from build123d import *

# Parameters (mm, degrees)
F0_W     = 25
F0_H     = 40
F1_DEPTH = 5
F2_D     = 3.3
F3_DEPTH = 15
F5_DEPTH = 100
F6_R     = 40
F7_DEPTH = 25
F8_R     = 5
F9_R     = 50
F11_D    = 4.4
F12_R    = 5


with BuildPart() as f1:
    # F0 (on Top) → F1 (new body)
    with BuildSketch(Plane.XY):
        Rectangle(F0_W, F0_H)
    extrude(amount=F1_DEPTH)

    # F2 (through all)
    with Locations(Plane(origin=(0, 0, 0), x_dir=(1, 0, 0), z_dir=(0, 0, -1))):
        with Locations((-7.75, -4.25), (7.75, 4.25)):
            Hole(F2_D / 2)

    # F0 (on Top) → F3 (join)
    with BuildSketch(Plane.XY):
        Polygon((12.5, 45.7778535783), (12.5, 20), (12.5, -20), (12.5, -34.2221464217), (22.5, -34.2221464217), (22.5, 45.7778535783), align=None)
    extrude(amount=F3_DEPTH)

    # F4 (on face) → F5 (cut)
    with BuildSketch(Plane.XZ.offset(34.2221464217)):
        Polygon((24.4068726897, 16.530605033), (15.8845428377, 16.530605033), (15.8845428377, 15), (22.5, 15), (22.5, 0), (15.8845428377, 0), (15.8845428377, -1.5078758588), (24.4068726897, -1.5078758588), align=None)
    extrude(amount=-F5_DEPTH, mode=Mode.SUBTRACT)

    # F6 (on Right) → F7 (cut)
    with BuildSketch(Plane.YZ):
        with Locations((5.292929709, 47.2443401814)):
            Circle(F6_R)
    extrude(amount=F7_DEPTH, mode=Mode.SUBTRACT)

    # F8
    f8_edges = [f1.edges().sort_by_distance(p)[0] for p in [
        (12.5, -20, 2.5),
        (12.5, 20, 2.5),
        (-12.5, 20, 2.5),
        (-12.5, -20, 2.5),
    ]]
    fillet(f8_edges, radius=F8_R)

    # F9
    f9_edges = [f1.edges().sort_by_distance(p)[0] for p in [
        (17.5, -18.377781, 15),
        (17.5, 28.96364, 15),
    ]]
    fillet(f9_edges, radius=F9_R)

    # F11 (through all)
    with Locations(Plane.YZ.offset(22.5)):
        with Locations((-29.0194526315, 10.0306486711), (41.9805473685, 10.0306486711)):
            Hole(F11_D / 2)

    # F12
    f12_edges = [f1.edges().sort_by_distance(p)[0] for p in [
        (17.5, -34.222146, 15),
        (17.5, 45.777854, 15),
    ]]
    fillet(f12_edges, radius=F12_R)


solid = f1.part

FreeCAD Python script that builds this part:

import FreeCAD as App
import Part
import Sketcher
from FreeCAD import Vector


def edges_at(feature, points):
    """Names of the edges that pass closest to the given points."""
    edges = feature.Shape.Edges
    near = lambda p: min(range(len(edges)), key=lambda i: edges[i].distToShape(Part.Vertex(*p))[0])
    return sorted({f"Edge{near(p) + 1}" for p in points})

doc = App.newDocument("Part")
body = doc.addObject("PartDesign::Body", "Body")

# Sketch on XY plane
sketch1 = body.newObject("Sketcher::SketchObject", "Sketch")
sketch1.AttachmentSupport = (doc.getObject("XY_Plane"), [""])
sketch1.MapMode = "FlatFace"
sketch1.addGeometry(Part.LineSegment(Vector(-12, 20, 0), Vector(-12, -20, 0)), False)
sketch1.addGeometry(Part.LineSegment(Vector(-12, -20, 0), Vector(12, -20, 0)), False)
sketch1.addGeometry(Part.LineSegment(Vector(12, -20, 0), Vector(12, 20, 0)), False)
sketch1.addGeometry(Part.LineSegment(Vector(12, 20, 0), Vector(-12, 20, 0)), False)
sketch1.addConstraint(Sketcher.Constraint("Coincident", 0, 2, 1, 1))
sketch1.addConstraint(Sketcher.Constraint("Coincident", 1, 2, 2, 1))
sketch1.addConstraint(Sketcher.Constraint("Coincident", 2, 2, 3, 1))
sketch1.addConstraint(Sketcher.Constraint("Coincident", 3, 2, 0, 1))
sketch1.addConstraint(Sketcher.Constraint("Vertical", 0))
sketch1.addConstraint(Sketcher.Constraint("Horizontal", 1))
sketch1.addConstraint(Sketcher.Constraint("Vertical", 2))
sketch1.addConstraint(Sketcher.Constraint("Horizontal", 3))
sketch1.addConstraint(Sketcher.Constraint("Symmetric", 0, 2, 2, 2, -1, 1))
sketch1.addConstraint(Sketcher.Constraint("DistanceX", 1, 1, 1, 2, 25.0))
sketch1.addConstraint(Sketcher.Constraint("DistanceY", 0, 2, 0, 1, 40.0))
pad1 = body.newObject("PartDesign::Pad", "Pad")
pad1.Profile = sketch1
pad1.Length = 5

# Sketch on XY plane
sketch2 = body.newObject("Sketcher::SketchObject", "Sketch001")
sketch2.AttachmentSupport = (doc.getObject("XY_Plane"), [""])
sketch2.MapMode = "FlatFace"
sketch2.addGeometry(Part.Circle(Vector(-7.8, 4.2, 0), Vector(0, 0, 1), 1.6), False)
sketch2.addGeometry(Part.Circle(Vector(7.8, -4.2, 0), Vector(0, 0, 1), 1.6), False)
sketch2.addConstraint(Sketcher.Constraint("Equal", 0, 1))
sketch2.addConstraint(Sketcher.Constraint("Symmetric", 0, 3, 1, 3, -1, 1))
sketch2.addConstraint(Sketcher.Constraint("Diameter", 0, 3.3))
sketch2.addConstraint(Sketcher.Constraint("DistanceX", 0, 3, 1, 3, 15.5))
sketch2.addConstraint(Sketcher.Constraint("DistanceY", 1, 3, 0, 3, 8.5))
doc.recompute()
hole = body.newObject("PartDesign::Hole", "Hole")
hole.Profile = sketch2
hole.ThreadType = "None"
hole.Diameter = 3.3
hole.DepthType = "ThroughAll"
hole.Reversed = True

# Sketch on XY plane
sketch3 = body.newObject("Sketcher::SketchObject", "Sketch002")
sketch3.AttachmentSupport = (doc.getObject("XY_Plane"), [""])
sketch3.MapMode = "FlatFace"
sketch3.addGeometry(Part.LineSegment(Vector(12, 46, 0), Vector(12, -34, 0)), False)
sketch3.addGeometry(Part.LineSegment(Vector(12, -34, 0), Vector(22, -34, 0)), False)
sketch3.addGeometry(Part.LineSegment(Vector(22, -34, 0), Vector(22, 46, 0)), False)
sketch3.addGeometry(Part.LineSegment(Vector(22, 46, 0), Vector(12, 46, 0)), False)
sketch3.addConstraint(Sketcher.Constraint("Coincident", 0, 2, 1, 1))
sketch3.addConstraint(Sketcher.Constraint("Coincident", 1, 2, 2, 1))
sketch3.addConstraint(Sketcher.Constraint("Coincident", 2, 2, 3, 1))
sketch3.addConstraint(Sketcher.Constraint("Coincident", 3, 2, 0, 1))
sketch3.addConstraint(Sketcher.Constraint("Vertical", 0))
sketch3.addConstraint(Sketcher.Constraint("Horizontal", 1))
sketch3.addConstraint(Sketcher.Constraint("Vertical", 2))
sketch3.addConstraint(Sketcher.Constraint("Horizontal", 3))
sketch3.addConstraint(Sketcher.Constraint("DistanceX", 1, 1, 1, 2, 10.0))
sketch3.addConstraint(Sketcher.Constraint("DistanceY", 0, 2, 0, 1, 80.0))
sketch3.addConstraint(Sketcher.Constraint("DistanceX", -1, 1, 0, 2, 12.5))
sketch3.addConstraint(Sketcher.Constraint("DistanceY", 0, 2, -1, 1, 34.222146))
pad2 = body.newObject("PartDesign::Pad", "Pad001")
pad2.Profile = sketch3
pad2.Length = 15

# Sketch on XZ plane
sketch4 = body.newObject("Sketcher::SketchObject", "Sketch003")
sketch4.AttachmentSupport = (doc.getObject("XZ_Plane"), [""])
sketch4.MapMode = "FlatFace"
sketch4.AttachmentOffset = App.Placement(Vector(0, 0, 34.222146), App.Rotation())
sketch4.addGeometry(Part.LineSegment(Vector(24.4, 16.5, 0), Vector(15.9, 16.5, 0)), False)
sketch4.addGeometry(Part.LineSegment(Vector(15.9, 16.5, 0), Vector(15.9, 15, 0)), False)
sketch4.addGeometry(Part.LineSegment(Vector(15.9, 15, 0), Vector(22.5, 15, 0)), False)
sketch4.addGeometry(Part.LineSegment(Vector(22.5, 15, 0), Vector(22.5, 0, 0)), False)
sketch4.addGeometry(Part.LineSegment(Vector(22.5, 0, 0), Vector(15.9, 0, 0)), False)
sketch4.addGeometry(Part.LineSegment(Vector(15.9, 0, 0), Vector(15.9, -1.5, 0)), False)
sketch4.addGeometry(Part.LineSegment(Vector(15.9, -1.5, 0), Vector(24.4, -1.5, 0)), False)
sketch4.addGeometry(Part.LineSegment(Vector(24.4, -1.5, 0), Vector(24.4, 16.5, 0)), False)
sketch4.addConstraint(Sketcher.Constraint("Coincident", 0, 2, 1, 1))
sketch4.addConstraint(Sketcher.Constraint("Coincident", 1, 2, 2, 1))
sketch4.addConstraint(Sketcher.Constraint("Coincident", 2, 2, 3, 1))
sketch4.addConstraint(Sketcher.Constraint("Coincident", 3, 2, 4, 1))
sketch4.addConstraint(Sketcher.Constraint("Coincident", 4, 2, 5, 1))
sketch4.addConstraint(Sketcher.Constraint("Coincident", 5, 2, 6, 1))
sketch4.addConstraint(Sketcher.Constraint("Coincident", 6, 2, 7, 1))
sketch4.addConstraint(Sketcher.Constraint("Coincident", 7, 2, 0, 1))
sketch4.addConstraint(Sketcher.Constraint("Horizontal", 0))
sketch4.addConstraint(Sketcher.Constraint("Vertical", 1))
sketch4.addConstraint(Sketcher.Constraint("Horizontal", 2))
sketch4.addConstraint(Sketcher.Constraint("Vertical", 3))
sketch4.addConstraint(Sketcher.Constraint("Horizontal", 4))
sketch4.addConstraint(Sketcher.Constraint("Vertical", 5))
sketch4.addConstraint(Sketcher.Constraint("Horizontal", 6))
sketch4.addConstraint(Sketcher.Constraint("Vertical", 7))
sketch4.addConstraint(Sketcher.Constraint("PointOnObject", 3, 2, -1))
sketch4.addConstraint(Sketcher.Constraint("Vertical", 1, 2, 4, 2))
sketch4.addConstraint(Sketcher.Constraint("DistanceY", 3, 2, 3, 1, 15.0))
sketch4.addConstraint(Sketcher.Constraint("DistanceX", -1, 1, 2, 2, 22.5))
sketch4.addConstraint(Sketcher.Constraint("DistanceX", 0, 2, 0, 1, 8.52233))
sketch4.addConstraint(Sketcher.Constraint("DistanceY", 7, 1, 7, 2, 18.038481))
sketch4.addConstraint(Sketcher.Constraint("DistanceX", 2, 1, 2, 2, 6.615457))
sketch4.addConstraint(Sketcher.Constraint("DistanceY", 1, 2, 1, 1, 1.530605))
pocket1 = body.newObject("PartDesign::Pocket", "Pocket")
pocket1.Profile = sketch4
pocket1.Length = 100

# Sketch on YZ plane
sketch5 = body.newObject("Sketcher::SketchObject", "Sketch004")
sketch5.AttachmentSupport = (doc.getObject("YZ_Plane"), [""])
sketch5.MapMode = "FlatFace"
sketch5.addGeometry(Part.Circle(Vector(5, 47, 0), Vector(0, 0, 1), 40), False)
sketch5.addConstraint(Sketcher.Constraint("Diameter", 0, 80.0))
sketch5.addConstraint(Sketcher.Constraint("DistanceX", -1, 1, 0, 3, 5.29293))
sketch5.addConstraint(Sketcher.Constraint("DistanceY", -1, 1, 0, 3, 47.24434))
pocket2 = body.newObject("PartDesign::Pocket", "Pocket001")
pocket2.Profile = sketch5
pocket2.Length = 25
pocket2.Reversed = True
doc.recompute()

fillet = body.newObject("PartDesign::Fillet", "Fillet")
fillet.Base = (pocket2, edges_at(pocket2, [
    (12.5, -20, 2.5),
    (12.5, 20, 2.5),
    (-12.5, 20, 2.5),
    (-12.5, -20, 2.5),
]))
fillet.Radius = 5
doc.recompute()

fillet2 = body.newObject("PartDesign::Fillet", "Fillet001")
fillet2.Base = (fillet, edges_at(fillet, [(17.5, -18.378, 15), (17.5, 28.964, 15)]))
fillet2.Radius = 50

# Sketch on YZ plane
sketch6 = body.newObject("Sketcher::SketchObject", "Sketch005")
sketch6.AttachmentSupport = (doc.getObject("YZ_Plane"), [""])
sketch6.MapMode = "FlatFace"
sketch6.AttachmentOffset = App.Placement(Vector(0, 0, 22.5), App.Rotation())
sketch6.addGeometry(Part.Circle(Vector(-29, 10, 0), Vector(0, 0, 1), 2.2), False)
sketch6.addGeometry(Part.Circle(Vector(42, 10, 0), Vector(0, 0, 1), 2.2), False)
sketch6.addConstraint(Sketcher.Constraint("Equal", 0, 1))
sketch6.addConstraint(Sketcher.Constraint("Horizontal", 0, 3, 1, 3))
sketch6.addConstraint(Sketcher.Constraint("Diameter", 0, 4.4))
sketch6.addConstraint(Sketcher.Constraint("DistanceX", 0, 3, 1, 3, 71.0))
sketch6.addConstraint(Sketcher.Constraint("DistanceY", -1, 1, 0, 3, 10.030649))
sketch6.addConstraint(Sketcher.Constraint("DistanceX", 0, 3, -1, 1, 29.019453))
doc.recompute()
hole2 = body.newObject("PartDesign::Hole", "Hole001")
hole2.Profile = sketch6
hole2.ThreadType = "None"
hole2.Diameter = 4.4
hole2.DepthType = "ThroughAll"
doc.recompute()

fillet3 = body.newObject("PartDesign::Fillet", "Fillet002")
fillet3.Base = (hole2, edges_at(hole2, [(17.5, -34.222, 15), (17.5, 45.778, 15)]))
fillet3.Radius = 5

doc.recompute()
